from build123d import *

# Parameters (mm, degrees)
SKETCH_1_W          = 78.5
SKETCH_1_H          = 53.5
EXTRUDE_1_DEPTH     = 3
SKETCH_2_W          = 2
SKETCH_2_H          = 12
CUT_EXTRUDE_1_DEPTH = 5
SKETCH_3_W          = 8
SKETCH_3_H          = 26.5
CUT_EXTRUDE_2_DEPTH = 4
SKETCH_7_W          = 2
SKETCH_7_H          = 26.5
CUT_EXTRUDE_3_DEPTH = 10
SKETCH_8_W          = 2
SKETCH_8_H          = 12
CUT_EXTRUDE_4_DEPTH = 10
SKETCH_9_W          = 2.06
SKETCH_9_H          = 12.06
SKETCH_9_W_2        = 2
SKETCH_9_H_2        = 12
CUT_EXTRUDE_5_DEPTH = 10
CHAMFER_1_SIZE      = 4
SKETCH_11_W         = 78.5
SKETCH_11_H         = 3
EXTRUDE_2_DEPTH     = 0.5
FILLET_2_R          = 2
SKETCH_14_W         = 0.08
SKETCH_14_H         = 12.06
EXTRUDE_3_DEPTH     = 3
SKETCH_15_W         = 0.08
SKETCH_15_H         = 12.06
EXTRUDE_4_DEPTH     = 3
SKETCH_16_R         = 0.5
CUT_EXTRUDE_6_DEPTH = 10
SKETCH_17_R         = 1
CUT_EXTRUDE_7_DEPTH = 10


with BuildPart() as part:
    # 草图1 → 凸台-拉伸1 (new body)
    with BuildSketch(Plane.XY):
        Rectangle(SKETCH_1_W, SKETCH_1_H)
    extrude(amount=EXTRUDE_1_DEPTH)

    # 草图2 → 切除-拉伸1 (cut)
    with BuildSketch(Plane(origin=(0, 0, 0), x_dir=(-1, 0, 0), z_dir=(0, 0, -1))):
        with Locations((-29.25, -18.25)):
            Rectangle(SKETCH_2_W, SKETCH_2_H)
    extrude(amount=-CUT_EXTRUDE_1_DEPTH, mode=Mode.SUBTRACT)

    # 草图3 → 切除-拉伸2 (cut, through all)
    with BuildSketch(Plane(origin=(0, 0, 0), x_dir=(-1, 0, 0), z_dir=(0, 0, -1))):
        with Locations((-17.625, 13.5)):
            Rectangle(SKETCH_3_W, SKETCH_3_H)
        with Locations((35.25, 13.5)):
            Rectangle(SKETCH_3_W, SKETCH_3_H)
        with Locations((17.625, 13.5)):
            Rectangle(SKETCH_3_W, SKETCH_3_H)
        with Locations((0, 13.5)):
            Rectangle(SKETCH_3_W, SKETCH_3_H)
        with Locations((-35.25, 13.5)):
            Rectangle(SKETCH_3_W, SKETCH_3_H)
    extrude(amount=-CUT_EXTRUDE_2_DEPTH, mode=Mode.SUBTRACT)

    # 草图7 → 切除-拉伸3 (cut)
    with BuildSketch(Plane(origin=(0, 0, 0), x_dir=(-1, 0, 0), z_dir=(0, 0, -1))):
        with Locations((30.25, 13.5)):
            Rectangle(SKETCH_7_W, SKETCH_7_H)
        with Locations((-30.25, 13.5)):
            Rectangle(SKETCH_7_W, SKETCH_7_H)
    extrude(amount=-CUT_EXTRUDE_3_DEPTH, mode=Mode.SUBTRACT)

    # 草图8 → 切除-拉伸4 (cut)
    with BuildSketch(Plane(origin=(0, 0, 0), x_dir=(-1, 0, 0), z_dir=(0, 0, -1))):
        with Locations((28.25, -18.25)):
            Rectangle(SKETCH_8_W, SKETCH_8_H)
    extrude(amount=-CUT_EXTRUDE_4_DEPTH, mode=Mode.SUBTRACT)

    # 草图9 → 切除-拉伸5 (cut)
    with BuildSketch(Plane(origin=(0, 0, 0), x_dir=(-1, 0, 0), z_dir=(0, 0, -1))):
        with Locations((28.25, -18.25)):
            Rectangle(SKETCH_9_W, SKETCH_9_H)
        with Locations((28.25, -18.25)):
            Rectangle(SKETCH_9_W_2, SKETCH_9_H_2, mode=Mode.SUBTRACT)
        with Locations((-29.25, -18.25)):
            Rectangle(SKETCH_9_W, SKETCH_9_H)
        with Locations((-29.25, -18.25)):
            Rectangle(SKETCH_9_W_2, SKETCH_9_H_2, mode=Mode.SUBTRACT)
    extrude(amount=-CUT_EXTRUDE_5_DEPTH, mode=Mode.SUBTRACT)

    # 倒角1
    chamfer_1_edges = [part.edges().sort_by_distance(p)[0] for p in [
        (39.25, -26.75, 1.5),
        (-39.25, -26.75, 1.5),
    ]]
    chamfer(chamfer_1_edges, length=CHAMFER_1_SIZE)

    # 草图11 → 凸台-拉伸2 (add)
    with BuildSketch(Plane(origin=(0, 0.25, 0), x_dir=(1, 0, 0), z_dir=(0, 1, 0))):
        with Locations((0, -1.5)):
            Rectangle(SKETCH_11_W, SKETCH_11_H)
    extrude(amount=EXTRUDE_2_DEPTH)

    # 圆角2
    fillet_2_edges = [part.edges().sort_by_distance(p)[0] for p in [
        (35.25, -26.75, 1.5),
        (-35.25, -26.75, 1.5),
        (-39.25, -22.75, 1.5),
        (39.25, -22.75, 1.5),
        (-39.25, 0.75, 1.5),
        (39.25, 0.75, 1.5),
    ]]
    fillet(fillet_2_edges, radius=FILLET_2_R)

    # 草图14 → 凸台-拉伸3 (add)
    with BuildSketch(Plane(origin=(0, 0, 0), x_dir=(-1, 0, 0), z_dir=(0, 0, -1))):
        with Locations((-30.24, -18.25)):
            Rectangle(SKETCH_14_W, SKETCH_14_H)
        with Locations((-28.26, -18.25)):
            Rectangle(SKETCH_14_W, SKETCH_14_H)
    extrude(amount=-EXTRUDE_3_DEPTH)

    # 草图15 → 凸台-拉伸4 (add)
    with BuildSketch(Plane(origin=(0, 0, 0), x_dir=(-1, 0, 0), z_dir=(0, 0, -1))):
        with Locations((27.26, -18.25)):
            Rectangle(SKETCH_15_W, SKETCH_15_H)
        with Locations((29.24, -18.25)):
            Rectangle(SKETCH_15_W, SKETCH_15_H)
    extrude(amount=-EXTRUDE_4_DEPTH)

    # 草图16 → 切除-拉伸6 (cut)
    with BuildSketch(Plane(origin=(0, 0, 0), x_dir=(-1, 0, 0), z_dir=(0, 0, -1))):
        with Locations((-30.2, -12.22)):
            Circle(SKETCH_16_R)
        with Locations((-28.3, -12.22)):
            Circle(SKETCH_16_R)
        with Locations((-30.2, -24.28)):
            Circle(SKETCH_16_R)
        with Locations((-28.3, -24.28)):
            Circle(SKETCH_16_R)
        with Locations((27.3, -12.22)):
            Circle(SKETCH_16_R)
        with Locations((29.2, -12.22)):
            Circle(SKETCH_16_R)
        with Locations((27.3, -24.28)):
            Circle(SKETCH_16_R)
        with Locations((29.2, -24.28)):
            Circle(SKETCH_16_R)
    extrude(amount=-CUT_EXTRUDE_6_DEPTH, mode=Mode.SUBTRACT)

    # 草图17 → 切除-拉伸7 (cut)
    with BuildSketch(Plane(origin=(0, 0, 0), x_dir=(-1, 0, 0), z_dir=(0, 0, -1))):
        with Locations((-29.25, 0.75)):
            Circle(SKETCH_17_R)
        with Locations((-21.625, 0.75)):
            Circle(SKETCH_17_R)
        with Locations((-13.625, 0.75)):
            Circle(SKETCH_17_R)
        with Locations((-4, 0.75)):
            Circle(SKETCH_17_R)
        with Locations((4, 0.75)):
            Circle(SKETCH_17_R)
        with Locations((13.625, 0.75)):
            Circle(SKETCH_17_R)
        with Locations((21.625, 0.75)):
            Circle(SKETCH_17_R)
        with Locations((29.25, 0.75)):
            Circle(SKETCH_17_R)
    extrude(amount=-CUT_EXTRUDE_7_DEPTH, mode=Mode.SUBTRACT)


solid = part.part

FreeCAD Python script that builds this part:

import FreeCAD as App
import Part
import Sketcher
Q = App.Units.Quantity


def edges_at(feature, points):
    """Names of the edges that pass closest to the given points."""
    edges = feature.Shape.Edges
    near = lambda p: min(range(len(edges)), key=lambda i: edges[i].distToShape(Part.Vertex(*p))[0])
    return sorted({f"Edge{near(p) + 1}" for p in points})

doc = App.newDocument("Part")
body = doc.addObject("PartDesign::Body", "Body")

sketch1 = doc.addObject("Sketcher::SketchObject", "Sketch")
body.addObject(sketch1)
sketch1.AttachmentSupport = (doc.XY_Plane, [""])
sketch1.MapMode = "FlatFace"
sketch1.addGeometry(Part.LineSegment(App.Vector(-39, 27, 0), App.Vector(-39, -27, 0)), False)
sketch1.addGeometry(Part.LineSegment(App.Vector(-39, -27, 0), App.Vector(39, -27, 0)), False)
sketch1.addGeometry(Part.LineSegment(App.Vector(39, -27, 0), App.Vector(39, 27, 0)), False)
sketch1.addGeometry(Part.LineSegment(App.Vector(39, 27, 0), App.Vector(-39, 27, 0)), False)
sketch1.addConstraint(Sketcher.Constraint("Coincident", 0, 2, 1, 1))
sketch1.addConstraint(Sketcher.Constraint("Coincident", 1, 2, 2, 1))
sketch1.addConstraint(Sketcher.Constraint("Coincident", 2, 2, 3, 1))
sketch1.addConstraint(Sketcher.Constraint("Coincident", 3, 2, 0, 1))
sketch1.addConstraint(Sketcher.Constraint("Vertical", 0))
sketch1.addConstraint(Sketcher.Constraint("Horizontal", 1))
sketch1.addConstraint(Sketcher.Constraint("Vertical", 2))
sketch1.addConstraint(Sketcher.Constraint("Horizontal", 3))
sketch1.addConstraint(Sketcher.Constraint("Symmetric", 0, 2, 2, 2, -1, 1))
sketch1.addConstraint(Sketcher.Constraint("DistanceX", 1, 1, 1, 2, Q("78.5 mm")))
sketch1.addConstraint(Sketcher.Constraint("DistanceY", 0, 2, 0, 1, Q("53.5 mm")))
pad1 = doc.addObject("PartDesign::Pad", "Pad")
body.addObject(pad1)
pad1.Profile = sketch1
pad1.Length = 3

sketch2 = doc.addObject("Sketcher::SketchObject", "Sketch001")
body.addObject(sketch2)
sketch2.AttachmentSupport = (doc.XY_Plane, [""])
sketch2.MapMode = "FlatFace"
sketch2.addGeometry(Part.LineSegment(App.Vector(30.2, -12.2, 0), App.Vector(30.2, -24.2, 0)), False)
sketch2.addGeometry(Part.LineSegment(App.Vector(30.2, -24.2, 0), App.Vector(28.2, -24.2, 0)), False)
sketch2.addGeometry(Part.LineSegment(App.Vector(28.2, -24.2, 0), App.Vector(28.2, -12.2, 0)), False)
sketch2.addGeometry(Part.LineSegment(App.Vector(28.2, -12.2, 0), App.Vector(30.2, -12.2, 0)), False)
sketch2.addConstraint(Sketcher.Constraint("Coincident", 0, 2, 1, 1))
sketch2.addConstraint(Sketcher.Constraint("Coincident", 1, 2, 2, 1))
sketch2.addConstraint(Sketcher.Constraint("Coincident", 2, 2, 3, 1))
sketch2.addConstraint(Sketcher.Constraint("Coincident", 3, 2, 0, 1))
sketch2.addConstraint(Sketcher.Constraint("Vertical", 0))
sketch2.addConstraint(Sketcher.Constraint("Horizontal", 1))
sketch2.addConstraint(Sketcher.Constraint("Vertical", 2))
sketch2.addConstraint(Sketcher.Constraint("Horizontal", 3))
sketch2.addConstraint(Sketcher.Constraint("DistanceX", 1, 2, 1, 1, Q("2 mm")))
sketch2.addConstraint(Sketcher.Constraint("DistanceY", 0, 2, 0, 1, Q("12 mm")))
sketch2.addConstraint(Sketcher.Constraint("DistanceX", -1, 1, 0, 2, Q("30.25 mm")))
sketch2.addConstraint(Sketcher.Constraint("DistanceY", 0, 2, -1, 1, Q("24.25 mm")))
pocket1 = doc.addObject("PartDesign::Pocket", "Pocket")
body.addObject(pocket1)
pocket1.Profile = sketch2
pocket1.Length = 5
pocket1.Reversed = True

sketch3 = doc.addObject("Sketcher::SketchObject", "Sketch002")
body.addObject(sketch3)
sketch3.AttachmentSupport = (doc.XY_Plane, [""])
sketch3.MapMode = "FlatFace"
sketch3.addGeometry(Part.LineSegment(App.Vector(22, 27, 0), App.Vector(22, 0, 0)), False)
sketch3.addGeometry(Part.LineSegment(App.Vector(22, 0, 0), App.Vector(14, 0, 0)), False)
sketch3.addGeometry(Part.LineSegment(App.Vector(14, 0, 0), App.Vector(14, 27, 0)), False)
sketch3.addGeometry(Part.LineSegment(App.Vector(14, 27, 0), App.Vector(22, 27, 0)), False)
sketch3.addGeometry(Part.LineSegment(App.Vector(-31, 27, 0), App.Vector(-31, 0, 0)), False)
sketch3.addGeometry(Part.LineSegment(App.Vector(-31, 0, 0), App.Vector(-39, 0, 0)), False)
sketch3.addGeometry(Part.LineSegment(App.Vector(-39, 0, 0), App.Vector(-39, 27, 0)), False)
sketch3.addGeometry(Part.LineSegment(App.Vector(-39, 27, 0), App.Vector(-31, 27, 0)), False)
sketch3.addGeometry(Part.LineSegment(App.Vector(-14, 27, 0), App.Vector(-14, 0, 0)), False)
sketch3.addGeometry(Part.LineSegment(App.Vector(-14, 0, 0), App.Vector(-22, 0, 0)), False)
sketch3.addGeometry(Part.LineSegment(App.Vector(-22, 0, 0), App.Vector(-22, 27, 0)), False)
sketch3.addGeometry(Part.LineSegment(App.Vector(-22, 27, 0), App.Vector(-14, 27, 0)), False)
sketch3.addGeometry(Part.LineSegment(App.Vector(4, 27, 0), App.Vector(4, 0, 0)), False)
sketch3.addGeometry(Part.LineSegment(App.Vector(4, 0, 0), App.Vector(-4, 0, 0)), False)
sketch3.addGeometry(Part.LineSegment(App.Vector(-4, 0, 0), App.Vector(-4, 27, 0)), False)
sketch3.addGeometry(Part.LineSegment(App.Vector(-4, 27, 0), App.Vector(4, 27, 0)), False)
sketch3.addGeometry(Part.LineSegment(App.Vector(39, 27, 0), App.Vector(39, 0, 0)), False)
sketch3.addGeometry(Part.LineSegment(App.Vector(39, 0, 0), App.Vector(31, 0, 0)), False)
sketch3.addGeometry(Part.LineSegment(App.Vector(31, 0, 0), App.Vector(31, 27, 0)), False)
sketch3.addGeometry(Part.LineSegment(App.Vector(31, 27, 0), App.Vector(39, 27, 0)), False)
sketch3.addConstraint(Sketcher.Constraint("Coincident", 0, 2, 1, 1))
sketch3.addConstraint(Sketcher.Constraint("Coincident", 1, 2, 2, 1))
sketch3.addConstraint(Sketcher.Constraint("Coincident", 2, 2, 3, 1))
sketch3.addConstraint(Sketcher.Constraint("Coincident", 3, 2, 0, 1))
sketch3.addConstraint(Sketcher.Constraint("Coincident", 4, 2, 5, 1))
sketch3.addConstraint(Sketcher.Constraint("Coincident", 5, 2, 6, 1))
sketch3.addConstraint(Sketcher.Constraint("Coincident", 6, 2, 7, 1))
sketch3.addConstraint(Sketcher.Constraint("Coincident", 7, 2, 4, 1))
sketch3.addConstraint(Sketcher.Constraint("Coincident", 8, 2, 9, 1))
sketch3.addConstraint(Sketcher.Constraint("Coincident", 9, 2, 10, 1))
sketch3.addConstraint(Sketcher.Constraint("Coincident", 10, 2, 11, 1))
sketch3.addConstraint(Sketcher.Constraint("Coincident", 11, 2, 8, 1))
sketch3.addConstraint(Sketcher.Constraint("Coincident", 12, 2, 13, 1))
sketch3.addConstraint(Sketcher.Constraint("Coincident", 13, 2, 14, 1))
sketch3.addConstraint(Sketcher.Constraint("Coincident", 14, 2, 15, 1))
sketch3.addConstraint(Sketcher.Constraint("Coincident", 15, 2, 12, 1))
sketch3.addConstraint(Sketcher.Constraint("Coincident", 16, 2, 17, 1))
sketch3.addConstraint(Sketcher.Constraint("Coincident", 17, 2, 18, 1))
sketch3.addConstraint(Sketcher.Constraint("Coincident", 18, 2, 19, 1))
sketch3.addConstraint(Sketcher.Constraint("Coincident", 19, 2, 16, 1))
sketch3.addConstraint(Sketcher.Constraint("Vertical", 0))
sketch3.addConstraint(Sketcher.Constraint("Horizontal", 1))
sketch3.addConstraint(Sketcher.Constraint("Vertical", 2))
sketch3.addConstraint(Sketcher.Constraint("Horizontal", 3))
sketch3.addConstraint(Sketcher.Constraint("Vertical", 4))
sketch3.addConstraint(Sketcher.Constraint("Horizontal", 5))
sketch3.addConstraint(Sketcher.Constraint("Vertical", 6))
sketch3.addConstraint(Sketcher.Constraint("Horizontal", 7))
sketch3.addConstraint(Sketcher.Constraint("Vertical", 8))
sketch3.addConstraint(Sketcher.Constraint("Horizontal", 9))
sketch3.addConstraint(Sketcher.Constraint("Vertical", 10))
sketch3.addConstraint(Sketcher.Constraint("Horizontal", 11))
sketch3.addConstraint(Sketcher.Constraint("Vertical", 12))
sketch3.addConstraint(Sketcher.Constraint("Horizontal", 13))
sketch3.addConstraint(Sketcher.Constraint("Vertical", 14))
sketch3.addConstraint(Sketcher.Constraint("Horizontal", 15))
sketch3.addConstraint(Sketcher.Constraint("Vertical", 16))
sketch3.addConstraint(Sketcher.Constraint("Horizontal", 17))
sketch3.addConstraint(Sketcher.Constraint("Vertical", 18))
sketch3.addConstraint(Sketcher.Constraint("Horizontal", 19))
sketch3.addConstraint(Sketcher.Constraint("Symmetric", 1, 2, 8, 2, -2))
sketch3.addConstraint(Sketcher.Constraint("Symmetric", 3, 2, 10, 2, -2))
sketch3.addConstraint(Sketcher.Constraint("Symmetric", 5, 2, 16, 2, -2))
sketch3.addConstraint(Sketcher.Constraint("Symmetric", 7, 2, 18, 2, -2))
sketch3.addConstraint(Sketcher.Constraint("Horizontal", 1, 2, 4, 2))
sketch3.addConstraint(Sketcher.Constraint("Horizontal", 3, 2, 6, 2))
sketch3.addConstraint(Sketcher.Constraint("Horizontal", 9, 2, 12, 2))
sketch3.addConstraint(Sketcher.Constraint("Horizontal", 11, 2, 14, 2))
sketch3.addConstraint(Sketcher.Constraint("Equal", 3, 5))
sketch3.addConstraint(Sketcher.Constraint("Equal", 11, 13))
sketch3.addConstraint(Sketcher.Constraint("DistanceX", 1, 2, 1, 1, Q("8 mm")))
sketch3.addConstraint(Sketcher.Constraint("DistanceY", 0, 2, 0, 1, Q("26.5 mm")))
sketch3.addConstraint(Sketcher.Constraint("DistanceX", -1, 1, 12, 2, Q("4 mm")))
sketch3.addConstraint(Sketcher.Constraint("DistanceY", -1, 1, 0, 2, Q("0.25 mm")))
sketch3.addConstraint(Sketcher.Constraint("DistanceX", 4, 2, -1, 1, Q("31.25 mm")))
sketch3.addConstraint(Sketcher.Constraint("DistanceX", 8, 2, 1, 2, Q("27.25 mm")))
pocket2 = doc.addObject("PartDesign::Pocket", "Pocket001")
body.addObject(pocket2)
pocket2.Profile = sketch3
pocket2.Type = "ThroughAll"
pocket2.Reversed = True

sketch4 = doc.addObject("Sketcher::SketchObject", "Sketch003")
body.addObject(sketch4)
sketch4.AttachmentSupport = (doc.XY_Plane, [""])
sketch4.MapMode = "FlatFace"
sketch4.addGeometry(Part.LineSegment(App.Vector(-29.2, 26.8, 0), App.Vector(-29.2, 0.2, 0)), False)
sketch4.addGeometry(Part.LineSegment(App.Vector(-29.2, 0.2, 0), App.Vector(-31.2, 0.2, 0)), False)
sketch4.addGeometry(Part.LineSegment(App.Vector(-31.2, 0.2, 0), App.Vector(-31.2, 26.8, 0)), False)
sketch4.addGeometry(Part.LineSegment(App.Vector(-31.2, 26.8, 0), App.Vector(-29.2, 26.8, 0)), False)
sketch4.addGeometry(Part.LineSegment(App.Vector(31.2, 26.8, 0), App.Vector(31.2, 0.2, 0)), False)
sketch4.addGeometry(Part.LineSegment(App.Vector(31.2, 0.2, 0), App.Vector(29.2, 0.2, 0)), False)
sketch4.addGeometry(Part.LineSegment(App.Vector(29.2, 0.2, 0), App.Vector(29.2, 26.8, 0)), False)
sketch4.addGeometry(Part.LineSegment(App.Vector(29.2, 26.8, 0), App.Vector(31.2, 26.8, 0)), False)
sketch4.addConstraint(Sketcher.Constraint("Coincident", 0, 2, 1, 1))
sketch4.addConstraint(Sketcher.Constraint("Coincident", 1, 2, 2, 1))
sketch4.addConstraint(Sketcher.Constraint("Coincident", 2, 2, 3, 1))
sketch4.addConstraint(Sketcher.Constraint("Coincident", 3, 2, 0, 1))
sketch4.addConstraint(Sketcher.Constraint("Coincident", 4, 2, 5, 1))
sketch4.addConstraint(Sketcher.Constraint("Coincident", 5, 2, 6, 1))
sketch4.addConstraint(Sketcher.Constraint("Coincident", 6, 2, 7, 1))
sketch4.addConstraint(Sketcher.Constraint("Coincident", 7, 2, 4, 1))
sketch4.addConstraint(Sketcher.Constraint("Vertical", 0))
sketch4.addConstraint(Sketcher.Constraint("Horizontal", 1))
sketch4.addConstraint(Sketcher.Constraint("Vertical", 2))
sketch4.addConstraint(Sketcher.Constraint("Horizontal", 3))
sketch4.addConstraint(Sketcher.Constraint("Vertical", 4))
sketch4.addConstraint(Sketcher.Constraint("Horizontal", 5))
sketch4.addConstraint(Sketcher.Constraint("Vertical", 6))
sketch4.addConstraint(Sketcher.Constraint("Horizontal", 7))
sketch4.addConstraint(Sketcher.Constraint("Symmetric", 1, 2, 4, 2, -2))
sketch4.addConstraint(Sketcher.Constraint("Symmetric", 3, 2, 6, 2, -2))
sketch4.addConstraint(Sketcher.Constraint("DistanceX", 1, 2, 1, 1, Q("2 mm")))
sketch4.addConstraint(Sketcher.Constraint("DistanceY", 0, 2, 0, 1, Q("26.5 mm")))
sketch4.addConstraint(Sketcher.Constraint("DistanceX", 0, 2, 4, 2, Q("60.5 mm")))
sketch4.addConstraint(Sketcher.Constraint("DistanceY", -1, 1, 0, 2, Q("0.25 mm")))
pocket3 = doc.addObject("PartDesign::Pocket", "Pocket002")
body.addObject(pocket3)
pocket3.Profile = sketch4
pocket3.Length = 10
pocket3.Reversed = True

sketch5 = doc.addObject("Sketcher::SketchObject", "Sketch004")
body.addObject(sketch5)
sketch5.AttachmentSupport = (doc.XY_Plane, [""])
sketch5.MapMode = "FlatFace"
sketch5.addGeometry(Part.LineSegment(App.Vector(-27.2, -12.2, 0), App.Vector(-27.2, -24.2, 0)), False)
sketch5.addGeometry(Part.LineSegment(App.Vector(-27.2, -24.2, 0), App.Vector(-29.2, -24.2, 0)), False)
sketch5.addGeometry(Part.LineSegment(App.Vector(-29.2, -24.2, 0), App.Vector(-29.2, -12.2, 0)), False)
sketch5.addGeometry(Part.LineSegment(App.Vector(-29.2, -12.2, 0), App.Vector(-27.2, -12.2, 0)), False)
sketch5.addConstraint(Sketcher.Constraint("Coincident", 0, 2, 1, 1))
sketch5.addConstraint(Sketcher.Constraint("Coincident", 1, 2, 2, 1))
sketch5.addConstraint(Sketcher.Constraint("Coincident", 2, 2, 3, 1))
sketch5.addConstraint(Sketcher.Constraint("Coincident", 3, 2, 0, 1))
sketch5.addConstraint(Sketcher.Constraint("Vertical", 0))
sketch5.addConstraint(Sketcher.Constraint("Horizontal", 1))
sketch5.addConstraint(Sketcher.Constraint("Vertical", 2))
sketch5.addConstraint(Sketcher.Constraint("Horizontal", 3))
sketch5.addConstraint(Sketcher.Constraint("DistanceX", 1, 2, 1, 1, Q("2 mm")))
sketch5.addConstraint(Sketcher.Constraint("DistanceY", 0, 2, 0, 1, Q("12 mm")))
sketch5.addConstraint(Sketcher.Constraint("DistanceX", 0, 2, -1, 1, Q("27.25 mm")))
sketch5.addConstraint(Sketcher.Constraint("DistanceY", 0, 2, -1, 1, Q("24.25 mm")))
pocket4 = doc.addObject("PartDesign::Pocket", "Pocket003")
body.addObject(pocket4)
pocket4.Profile = sketch5
pocket4.Length = 10
pocket4.Reversed = True

sketch6 = doc.addObject("Sketcher::SketchObject", "Sketch005")
body.addObject(sketch6)
sketch6.AttachmentSupport = (doc.XY_Plane, [""])
sketch6.MapMode = "FlatFace"
sketch6.addGeometry(Part.LineSegment(App.Vector(-27.2, -12.2, 0), App.Vector(-27.2, -24.3, 0)), False)
sketch6.addGeometry(Part.LineSegment(App.Vector(-27.2, -24.3, 0), App.Vector(-29.3, -24.3, 0)), False)
sketch6.addGeometry(Part.LineSegment(App.Vector(-29.3, -24.3, 0), App.Vector(-29.3, -12.2, 0)), False)
sketch6.addGeometry(Part.LineSegment(App.Vector(-29.3, -12.2, 0), App.Vector(-27.2, -12.2, 0)), False)
sketch6.addGeometry(Part.LineSegment(App.Vector(-29.2, -24.2, 0), App.Vector(-27.2, -24.2, 0)), False)
sketch6.addGeometry(Part.LineSegment(App.Vector(-27.2, -24.2, 0), App.Vector(-27.2, -12.2, 0)), False)
sketch6.addGeometry(Part.LineSegment(App.Vector(-27.2, -12.2, 0), App.Vector(-29.2, -12.2, 0)), False)
sketch6.addGeometry(Part.LineSegment(App.Vector(-29.2, -12.2, 0), App.Vector(-29.2, -24.2, 0)), False)
sketch6.addGeometry(Part.LineSegment(App.Vector(30.3, -12.2, 0), App.Vector(30.3, -24.3, 0)), False)
sketch6.addGeometry(Part.LineSegment(App.Vector(30.3, -24.3, 0), App.Vector(28.2, -24.3, 0)), False)
sketch6.addGeometry(Part.LineSegment(App.Vector(28.2, -24.3, 0), App.Vector(28.2, -12.2, 0)), False)
sketch6.addGeometry(Part.LineSegment(App.Vector(28.2, -12.2, 0), App.Vector(30.3, -12.2, 0)), False)
sketch6.addGeometry(Part.LineSegment(App.Vector(28.2, -24.2, 0), App.Vector(30.2, -24.2, 0)), False)
sketch6.addGeometry(Part.LineSegment(App.Vector(30.2, -24.2, 0), App.Vector(30.2, -12.2, 0)), False)
sketch6.addGeometry(Part.LineSegment(App.Vector(30.2, -12.2, 0), App.Vector(28.2, -12.2, 0)), False)
sketch6.addGeometry(Part.LineSegment(App.Vector(28.2, -12.2, 0), App.Vector(28.2, -24.2, 0)), False)
sketch6.addConstraint(Sketcher.Constraint("Coincident", 0, 2, 1, 1))
sketch6.addConstraint(Sketcher.Constraint("Coincident", 1, 2, 2, 1))
sketch6.addConstraint(Sketcher.Constraint("Coincident", 2, 2, 3, 1))
sketch6.addConstraint(Sketcher.Constraint("Coincident", 3, 2, 0, 1))
sketch6.addConstraint(Sketcher.Constraint("Coincident", 4, 2, 5, 1))
sketch6.addConstraint(Sketcher.Constraint("Coincident", 5, 2, 6, 1))
sketch6.addConstraint(Sketcher.Constraint("Coincident", 6, 2, 7, 1))
sketch6.addConstraint(Sketcher.Constraint("Coincident", 7, 2, 4, 1))
sketch6.addConstraint(Sketcher.Constraint("Coincident", 8, 2, 9, 1))
sketch6.addConstraint(Sketcher.Constraint("Coincident", 9, 2, 10, 1))
sketch6.addConstraint(Sketcher.Constraint("Coincident", 10, 2, 11, 1))
sketch6.addConstraint(Sketcher.Constraint("Coincident", 11, 2, 8, 1))
sketch6.addConstraint(Sketcher.Constraint("Coincident", 12, 2, 13, 1))
sketch6.addConstraint(Sketcher.Constraint("Coincident", 13, 2, 14, 1))
sketch6.addConstraint(Sketcher.Constraint("Coincident", 14, 2, 15, 1))
sketch6.addConstraint(Sketcher.Constraint("Coincident", 15, 2, 12, 1))
sketch6.addConstraint(Sketcher.Constraint("Vertical", 0))
sketch6.addConstraint(Sketcher.Constraint("Horizontal", 1))
sketch6.addConstraint(Sketcher.Constraint("Vertical", 2))
sketch6.addConstraint(Sketcher.Constraint("Horizontal", 3))
sketch6.addConstraint(Sketcher.Constraint("Horizontal", 4))
sketch6.addConstraint(Sketcher.Constraint("Vertical", 5))
sketch6.addConstraint(Sketcher.Constraint("Horizontal", 6))
sketch6.addConstraint(Sketcher.Constraint("Vertical", 7))
sketch6.addConstraint(Sketcher.Constraint("Vertical", 8))
sketch6.addConstraint(Sketcher.Constraint("Horizontal", 9))
sketch6.addConstraint(Sketcher.Constraint("Vertical", 10))
sketch6.addConstraint(Sketcher.Constraint("Horizontal", 11))
sketch6.addConstraint(Sketcher.Constraint("Horizontal", 12))
sketch6.addConstraint(Sketcher.Constraint("Vertical", 13))
sketch6.addConstraint(Sketcher.Constraint("Horizontal", 14))
sketch6.addConstraint(Sketcher.Constraint("Vertical", 15))
sketch6.addConstraint(Sketcher.Constraint("Horizontal", 1, 2, 8, 2))
sketch6.addConstraint(Sketcher.Constraint("Horizontal", 3, 2, 10, 2))
sketch6.addConstraint(Sketcher.Constraint("Horizontal", 7, 2, 12, 2))
sketch6.addConstraint(Sketcher.Constraint("Horizontal", 6, 2, 13, 2))
sketch6.addConstraint(Sketcher.Constraint("Equal", 3, 9))
sketch6.addConstraint(Sketcher.Constraint("Equal", 6, 12))
sketch6.addConstraint(Sketcher.Constraint("DistanceX", 4, 1, 4, 2, Q("2 mm")))
sketch6.addConstraint(Sketcher.Constraint("DistanceY", 5, 1, 5, 2, Q("12 mm")))
sketch6.addConstraint(Sketcher.Constraint("DistanceX", 1, 2, 1, 1, Q("2.06 mm")))
sketch6.addConstraint(Sketcher.Constraint("DistanceY", 0, 2, 0, 1, Q("12.06 mm")))
sketch6.addConstraint(Sketcher.Constraint("DistanceX", 0, 2, 8, 2, Q("57.5 mm")))
sketch6.addConstraint(Sketcher.Constraint("DistanceX", 0, 2, -1, 1, Q("27.22 mm")))
sketch6.addConstraint(Sketcher.Constraint("DistanceY", 0, 2, -1, 1, Q("24.28 mm")))
sketch6.addConstraint(Sketcher.Constraint("DistanceX", 4, 2, -1, 1, Q("27.25 mm")))
sketch6.addConstraint(Sketcher.Constraint("DistanceY", 4, 2, -1, 1, Q("24.25 mm")))
sketch6.addConstraint(Sketcher.Constraint("DistanceX", -1, 1, 12, 2, Q("30.25 mm")))
pocket5 = doc.addObject("PartDesign::Pocket", "Pocket004")
body.addObject(pocket5)
pocket5.Profile = sketch6
pocket5.Length = 10
pocket5.Reversed = True
doc.recompute()

chamfer = doc.addObject("PartDesign::Chamfer", "Chamfer")
body.addObject(chamfer)
chamfer.Base = (pocket5, edges_at(pocket5, [(39.25, -26.75, 1.5), (-39.25, -26.75, 1.5)]))
chamfer.Size = 4

sketch7 = doc.addObject("Sketcher::SketchObject", "Sketch006")
body.addObject(sketch7)
sketch7.AttachmentSupport = (doc.XZ_Plane, [""])
sketch7.MapMode = "FlatFace"
sketch7.AttachmentOffset = App.Placement(App.Vector(0, 0, -0.25), App.Rotation())
sketch7.addGeometry(Part.LineSegment(App.Vector(-39.2, 0, 0), App.Vector(-39.2, 3, 0)), False)
sketch7.addGeometry(Part.LineSegment(App.Vector(-39.2, 3, 0), App.Vector(39.2, 3, 0)), False)
sketch7.addGeometry(Part.LineSegment(App.Vector(39.2, 3, 0), App.Vector(39.2, 0, 0)), False)
sketch7.addGeometry(Part.LineSegment(App.Vector(39.2, 0, 0), App.Vector(-39.2, 0, 0)), False)
sketch7.addConstraint(Sketcher.Constraint("Coincident", 0, 2, 1, 1))
sketch7.addConstraint(Sketcher.Constraint("Coincident", 1, 2, 2, 1))
sketch7.addConstraint(Sketcher.Constraint("Coincident", 2, 2, 3, 1))
sketch7.addConstraint(Sketcher.Constraint("Coincident", 3, 2, 0, 1))
sketch7.addConstraint(Sketcher.Constraint("Vertical", 0))
sketch7.addConstraint(Sketcher.Constraint("Horizontal", 1))
sketch7.addConstraint(Sketcher.Constraint("Vertical", 2))
sketch7.addConstraint(Sketcher.Constraint("Horizontal", 3))
sketch7.addConstraint(Sketcher.Constraint("Symmetric", 2, 2, 3, 2, -1, 1))
sketch7.addConstraint(Sketcher.Constraint("DistanceY", 0, 1, 0, 2, Q("3 mm")))
sketch7.addConstraint(Sketcher.Constraint("DistanceX", 1, 1, 1, 2, Q("78.5 mm")))
pad2 = doc.addObject("PartDesign::Pad", "Pad001")
body.addObject(pad2)
pad2.Profile = sketch7
pad2.Length = 0.5
pad2.Reversed = True
doc.recompute()

fillet = doc.addObject("PartDesign::Fillet", "Fillet")
body.addObject(fillet)
fillet.Base = (pad2, edges_at(pad2, [
    (35.25, -26.75, 1.5),
    (-35.25, -26.75, 1.5),
    (-39.25, -22.75, 1.5),
    (39.25, -22.75, 1.5),
    (-39.25, 0.75, 1.5),
    (39.25, 0.75, 1.5),
]))
fillet.Radius = 2

sketch8 = doc.addObject("Sketcher::SketchObject", "Sketch007")
body.addObject(sketch8)
sketch8.AttachmentSupport = (doc.XY_Plane, [""])
sketch8.MapMode = "FlatFace"
sketch8.addGeometry(Part.LineSegment(App.Vector(30.28, -12.22, 0), App.Vector(30.28, -24.28, 0)), False)
sketch8.addGeometry(Part.LineSegment(App.Vector(30.28, -24.28, 0), App.Vector(30.2, -24.28, 0)), False)
sketch8.addGeometry(Part.LineSegment(App.Vector(30.2, -24.28, 0), App.Vector(30.2, -12.22, 0)), False)
sketch8.addGeometry(Part.LineSegment(App.Vector(30.2, -12.22, 0), App.Vector(30.28, -12.22, 0)), False)
sketch8.addGeometry(Part.LineSegment(App.Vector(28.3, -12.22, 0), App.Vector(28.3, -24.28, 0)), False)
sketch8.addGeometry(Part.LineSegment(App.Vector(28.3, -24.28, 0), App.Vector(28.22, -24.28, 0)), False)
sketch8.addGeometry(Part.LineSegment(App.Vector(28.22, -24.28, 0), App.Vector(28.22, -12.22, 0)), False)
sketch8.addGeometry(Part.LineSegment(App.Vector(28.22, -12.22, 0), App.Vector(28.3, -12.22, 0)), False)
sketch8.addConstraint(Sketcher.Constraint("Coincident", 0, 2, 1, 1))
sketch8.addConstraint(Sketcher.Constraint("Coincident", 1, 2, 2, 1))
sketch8.addConstraint(Sketcher.Constraint("Coincident", 2, 2, 3, 1))
sketch8.addConstraint(Sketcher.Constraint("Coincident", 3, 2, 0, 1))
sketch8.addConstraint(Sketcher.Constraint("Coincident", 4, 2, 5, 1))
sketch8.addConstraint(Sketcher.Constraint("Coincident", 5, 2, 6, 1))
sketch8.addConstraint(Sketcher.Constraint("Coincident", 6, 2, 7, 1))
sketch8.addConstraint(Sketcher.Constraint("Coincident", 7, 2, 4, 1))
sketch8.addConstraint(Sketcher.Constraint("Vertical", 0))
sketch8.addConstraint(Sketcher.Constraint("Horizontal", 1))
sketch8.addConstraint(Sketcher.Constraint("Vertical", 2))
sketch8.addConstraint(Sketcher.Constraint("Horizontal", 3))
sketch8.addConstraint(Sketcher.Constraint("Vertical", 4))
sketch8.addConstraint(Sketcher.Constraint("Horizontal", 5))
sketch8.addConstraint(Sketcher.Constraint("Vertical", 6))
sketch8.addConstraint(Sketcher.Constraint("Horizontal", 7))
sketch8.addConstraint(Sketcher.Constraint("Horizontal", 1, 2, 4, 2))
sketch8.addConstraint(Sketcher.Constraint("Horizontal", 3, 2, 6, 2))
sketch8.addConstraint(Sketcher.Constraint("Equal", 3, 5))
sketch8.addConstraint(Sketcher.Constraint("DistanceX", 1, 2, 1, 1, Q("0.08 mm")))
sketch8.addConstraint(Sketcher.Constraint("DistanceY", 0, 2, 0, 1, Q("12.06 mm")))
sketch8.addConstraint(Sketcher.Constraint("DistanceX", -1, 1, 1, 2, Q("30.2 mm")))
sketch8.addConstraint(Sketcher.Constraint("DistanceX", -1, 1, 4, 2, Q("28.3 mm")))
sketch8.addConstraint(Sketcher.Constraint("DistanceY", 0, 2, -1, 1, Q("24.28 mm")))
pad3 = doc.addObject("PartDesign::Pad", "Pad002")
body.addObject(pad3)
pad3.Profile = sketch8
pad3.Length = 3

sketch9 = doc.addObject("Sketcher::SketchObject", "Sketch008")
body.addObject(sketch9)
sketch9.AttachmentSupport = (doc.XY_Plane, [""])
sketch9.MapMode = "FlatFace"
sketch9.addGeometry(Part.LineSegment(App.Vector(-27.22, -12.22, 0), App.Vector(-27.22, -24.28, 0)), False)
sketch9.addGeometry(Part.LineSegment(App.Vector(-27.22, -24.28, 0), App.Vector(-27.3, -24.28, 0)), False)
sketch9.addGeometry(Part.LineSegment(App.Vector(-27.3, -24.28, 0), App.Vector(-27.3, -12.22, 0)), False)
sketch9.addGeometry(Part.LineSegment(App.Vector(-27.3, -12.22, 0), App.Vector(-27.22, -12.22, 0)), False)
sketch9.addGeometry(Part.LineSegment(App.Vector(-29.2, -12.22, 0), App.Vector(-29.2, -24.28, 0)), False)
sketch9.addGeometry(Part.LineSegment(App.Vector(-29.2, -24.28, 0), App.Vector(-29.28, -24.28, 0)), False)
sketch9.addGeometry(Part.LineSegment(App.Vector(-29.28, -24.28, 0), App.Vector(-29.28, -12.22, 0)), False)
sketch9.addGeometry(Part.LineSegment(App.Vector(-29.28, -12.22, 0), App.Vector(-29.2, -12.22, 0)), False)
sketch9.addConstraint(Sketcher.Constraint("Coincident", 0, 2, 1, 1))
sketch9.addConstraint(Sketcher.Constraint("Coincident", 1, 2, 2, 1))
sketch9.addConstraint(Sketcher.Constraint("Coincident", 2, 2, 3, 1))
sketch9.addConstraint(Sketcher.Constraint("Coincident", 3, 2, 0, 1))
sketch9.addConstraint(Sketcher.Constraint("Coincident", 4, 2, 5, 1))
sketch9.addConstraint(Sketcher.Constraint("Coincident", 5, 2, 6, 1))
sketch9.addConstraint(Sketcher.Constraint("Coincident", 6, 2, 7, 1))
sketch9.addConstraint(Sketcher.Constraint("Coincident", 7, 2, 4, 1))
sketch9.addConstraint(Sketcher.Constraint("Vertical", 0))
sketch9.addConstraint(Sketcher.Constraint("Horizontal", 1))
sketch9.addConstraint(Sketcher.Constraint("Vertical", 2))
sketch9.addConstraint(Sketcher.Constraint("Horizontal", 3))
sketch9.addConstraint(Sketcher.Constraint("Vertical", 4))
sketch9.addConstraint(Sketcher.Constraint("Horizontal", 5))
sketch9.addConstraint(Sketcher.Constraint("Vertical", 6))
sketch9.addConstraint(Sketcher.Constraint("Horizontal", 7))
sketch9.addConstraint(Sketcher.Constraint("Horizontal", 1, 2, 4, 2))
sketch9.addConstraint(Sketcher.Constraint("Horizontal", 3, 2, 6, 2))
sketch9.addConstraint(Sketcher.Constraint("Equal", 3, 5))
sketch9.addConstraint(Sketcher.Constraint("DistanceX", 1, 2, 1, 1, Q("0.08 mm")))
sketch9.addConstraint(Sketcher.Constraint("DistanceY", 0, 2, 0, 1, Q("12.06 mm")))
sketch9.addConstraint(Sketcher.Constraint("DistanceX", 1, 2, -1, 1, Q("27.3 mm")))
sketch9.addConstraint(Sketcher.Constraint("DistanceX", 4, 2, -1, 1, Q("29.2 mm")))
sketch9.addConstraint(Sketcher.Constraint("DistanceY", 0, 2, -1, 1, Q("24.28 mm")))
pad4 = doc.addObject("PartDesign::Pad", "Pad003")
body.addObject(pad4)
pad4.Profile = sketch9
pad4.Length = 3

sketch10 = doc.addObject("Sketcher::SketchObject", "Sketch009")
body.addObject(sketch10)
sketch10.AttachmentSupport = (doc.XY_Plane, [""])
sketch10.MapMode = "FlatFace"
sketch10.addGeometry(Part.Circle(App.Vector(30.2, -12.2, 0), App.Vector(0, 0, 1), 0.5), False)
sketch10.addGeometry(Part.Circle(App.Vector(28.3, -12.2, 0), App.Vector(0, 0, 1), 0.5), False)
sketch10.addGeometry(Part.Circle(App.Vector(30.2, -24.3, 0), App.Vector(0, 0, 1), 0.5), False)
sketch10.addGeometry(Part.Circle(App.Vector(28.3, -24.3, 0), App.Vector(0, 0, 1), 0.5), False)
sketch10.addGeometry(Part.Circle(App.Vector(-27.3, -12.2, 0), App.Vector(0, 0, 1), 0.5), False)
sketch10.addGeometry(Part.Circle(App.Vector(-29.2, -12.2, 0), App.Vector(0, 0, 1), 0.5), False)
sketch10.addGeometry(Part.Circle(App.Vector(-27.3, -24.3, 0), App.Vector(0, 0, 1), 0.5), False)
sketch10.addGeometry(Part.Circle(App.Vector(-29.2, -24.3, 0), App.Vector(0, 0, 1), 0.5), False)
sketch10.addConstraint(Sketcher.Constraint("Equal", 0, 1))
sketch10.addConstraint(Sketcher.Constraint("Equal", 1, 2))
sketch10.addConstraint(Sketcher.Constraint("Equal", 2, 3))
sketch10.addConstraint(Sketcher.Constraint("Equal", 3, 4))
sketch10.addConstraint(Sketcher.Constraint("Equal", 4, 5))
sketch10.addConstraint(Sketcher.Constraint("Equal", 5, 6))
sketch10.addConstraint(Sketcher.Constraint("Equal", 6, 7))
sketch10.addConstraint(Sketcher.Constraint("Horizontal", 0, 3, 1, 3))
sketch10.addConstraint(Sketcher.Constraint("Horizontal", 2, 3, 3, 3))
sketch10.addConstraint(Sketcher.Constraint("Horizontal", 1, 3, 4, 3))
sketch10.addConstraint(Sketcher.Constraint("Horizontal", 4, 3, 5, 3))
sketch10.addConstraint(Sketcher.Constraint("Horizontal", 3, 3, 6, 3))
sketch10.addConstraint(Sketcher.Constraint("Horizontal", 6, 3, 7, 3))
sketch10.addConstraint(Sketcher.Constraint("Vertical", 0, 3, 2, 3))
sketch10.addConstraint(Sketcher.Constraint("Vertical", 1, 3, 3, 3))
sketch10.addConstraint(Sketcher.Constraint("Vertical", 4, 3, 6, 3))
sketch10.addConstraint(Sketcher.Constraint("Vertical", 5, 3, 7, 3))
sketch10.addConstraint(Sketcher.Constraint("Diameter", 0, Q("1 mm")))
sketch10.addConstraint(Sketcher.Constraint("DistanceX", -1, 1, 0, 3, Q("30.2 mm")))
sketch10.addConstraint(Sketcher.Constraint("DistanceX", -1, 1, 1, 3, Q("28.3 mm")))
sketch10.addConstraint(Sketcher.Constraint("DistanceX", 4, 3, -1, 1, Q("27.3 mm")))
sketch10.addConstraint(Sketcher.Constraint("DistanceX", 5, 3, -1, 1, Q("29.2 mm")))
sketch10.addConstraint(Sketcher.Constraint("DistanceY", 0, 3, -1, 1, Q("12.22 mm")))
sketch10.addConstraint(Sketcher.Constraint("DistanceY", 2, 3, -1, 1, Q("24.28 mm")))
pocket6 = doc.addObject("PartDesign::Pocket", "Pocket005")
body.addObject(pocket6)
pocket6.Profile = sketch10
pocket6.Length = 10
pocket6.Reversed = True

sketch11 = doc.addObject("Sketcher::SketchObject", "Sketch010")
body.addObject(sketch11)
sketch11.AttachmentSupport = (doc.XY_Plane, [""])
sketch11.MapMode = "FlatFace"
sketch11.addGeometry(Part.Circle(App.Vector(29.2, 0.8, 0), App.Vector(0, 0, 1), 1), False)
sketch11.addGeometry(Part.Circle(App.Vector(21.6, 0.8, 0), App.Vector(0, 0, 1), 1), False)
sketch11.addGeometry(Part.Circle(App.Vector(13.6, 0.8, 0), App.Vector(0, 0, 1), 1), False)
sketch11.addGeometry(Part.Circle(App.Vector(4, 0.8, 0), App.Vector(0, 0, 1), 1), False)
sketch11.addGeometry(Part.Circle(App.Vector(-4, 0.8, 0), App.Vector(0, 0, 1), 1), False)
sketch11.addGeometry(Part.Circle(App.Vector(-13.6, 0.8, 0), App.Vector(0, 0, 1), 1), False)
sketch11.addGeometry(Part.Circle(App.Vector(-21.6, 0.8, 0), App.Vector(0, 0, 1), 1), False)
sketch11.addGeometry(Part.Circle(App.Vector(-29.2, 0.8, 0), App.Vector(0, 0, 1), 1), False)
sketch11.addConstraint(Sketcher.Constraint("Equal", 0, 1))
sketch11.addConstraint(Sketcher.Constraint("Equal", 1, 2))
sketch11.addConstraint(Sketcher.Constraint("Equal", 2, 3))
sketch11.addConstraint(Sketcher.Constraint("Equal", 3, 4))
sketch11.addConstraint(Sketcher.Constraint("Equal", 4, 5))
sketch11.addConstraint(Sketcher.Constraint("Equal", 5, 6))
sketch11.addConstraint(Sketcher.Constraint("Equal", 6, 7))
sketch11.addConstraint(Sketcher.Constraint("Symmetric", 3, 3, 4, 3, -2))
sketch11.addConstraint(Sketcher.Constraint("Symmetric", 2, 3, 5, 3, -2))
sketch11.addConstraint(Sketcher.Constraint("Symmetric", 1, 3, 6, 3, -2))
sketch11.addConstraint(Sketcher.Constraint("Symmetric", 0, 3, 7, 3, -2))
sketch11.addConstraint(Sketcher.Constraint("Horizontal", 0, 3, 1, 3))
sketch11.addConstraint(Sketcher.Constraint("Horizontal", 1, 3, 2, 3))
sketch11.addConstraint(Sketcher.Constraint("Horizontal", 2, 3, 3, 3))
sketch11.addConstraint(Sketcher.Constraint("Diameter", 0, Q("2 mm")))
sketch11.addConstraint(Sketcher.Constraint("DistanceX", -1, 1, 3, 3, Q("4 mm")))
sketch11.addConstraint(Sketcher.Constraint("DistanceX", 2, 3, 1, 3, Q("8 mm")))
sketch11.addConstraint(Sketcher.Constraint("DistanceX", -1, 1, 0, 3, Q("29.25 mm")))
sketch11.addConstraint(Sketcher.Constraint("DistanceY", -1, 1, 0, 3, Q("0.75 mm")))
sketch11.addConstraint(Sketcher.Constraint("DistanceX", 5, 3, 2, 3, Q("27.25 mm")))
pocket7 = doc.addObject("PartDesign::Pocket", "Pocket006")
body.addObject(pocket7)
pocket7.Profile = sketch11
pocket7.Length = 10
pocket7.Reversed = True

doc.recompute()
